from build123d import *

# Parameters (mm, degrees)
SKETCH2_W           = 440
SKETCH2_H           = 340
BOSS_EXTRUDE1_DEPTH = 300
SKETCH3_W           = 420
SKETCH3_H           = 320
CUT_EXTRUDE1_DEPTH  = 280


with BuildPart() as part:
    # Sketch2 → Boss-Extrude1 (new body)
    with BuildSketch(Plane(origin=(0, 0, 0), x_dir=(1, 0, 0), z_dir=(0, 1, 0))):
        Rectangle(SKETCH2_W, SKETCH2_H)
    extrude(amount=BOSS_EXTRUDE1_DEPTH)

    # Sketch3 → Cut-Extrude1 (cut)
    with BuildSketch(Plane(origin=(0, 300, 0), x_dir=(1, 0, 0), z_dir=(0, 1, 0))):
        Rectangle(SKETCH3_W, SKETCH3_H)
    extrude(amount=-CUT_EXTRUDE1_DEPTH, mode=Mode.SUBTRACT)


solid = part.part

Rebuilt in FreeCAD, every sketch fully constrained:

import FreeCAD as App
import Part
import Sketcher
from FreeCAD import Vector
Q = App.Units.Quantity

doc = App.newDocument("Part")
body = doc.addObject("PartDesign::Body", "Body")

# Sketch on XZ plane
sketch1 = doc.addObject("Sketcher::SketchObject", "Sketch")
body.addObject(sketch1)
sketch1.AttachmentSupport = (doc.XZ_Plane, [""])
sketch1.MapMode = "FlatFace"
sketch1.addGeometry([
    Part.LineSegment(Vector(-220, -170, 0), Vector(-220, 170, 0)),
    Part.LineSegment(Vector(-220, 170, 0), Vector(220, 170, 0)),
    Part.LineSegment(Vector(220, 170, 0), Vector(220, -170, 0)),
    Part.LineSegment(Vector(220, -170, 0), Vector(-220, -170, 0)),
], False)
sketch1.addConstraint([
    Sketcher.Constraint("Coincident", 0, 2, 1, 1),
    Sketcher.Constraint("Coincident", 1, 2, 2, 1),
    Sketcher.Constraint("Coincident", 2, 2, 3, 1),
    Sketcher.Constraint("Coincident", 3, 2, 0, 1),
    Sketcher.Constraint("Vertical", 0),
    Sketcher.Constraint("Horizontal", 1),
    Sketcher.Constraint("Vertical", 2),
    Sketcher.Constraint("Horizontal", 3),
    Sketcher.Constraint("Symmetric", 0, 2, 2, 2, -1, 1),
    Sketcher.Constraint("DistanceX", 1, 1, 1, 2, Q("440 mm")),
    Sketcher.Constraint("DistanceY", 0, 1, 0, 2, Q("340 mm")),
])
pad1 = doc.addObject("PartDesign::Pad", "Pad")
body.addObject(pad1)
pad1.Profile = sketch1
pad1.Length = 300
pad1.Reversed = True

# Sketch on XZ plane
sketch2 = doc.addObject("Sketcher::SketchObject", "Sketch001")
body.addObject(sketch2)
sketch2.AttachmentSupport = (doc.XZ_Plane, [""])
sketch2.MapMode = "FlatFace"
sketch2.AttachmentOffset = App.Placement(Vector(0, 0, -300), App.Rotation())
sketch2.addGeometry([
    Part.LineSegment(Vector(-210, -160, 0), Vector(-210, 160, 0)),
    Part.LineSegment(Vector(-210, 160, 0), Vector(210, 160, 0)),
    Part.LineSegment(Vector(210, 160, 0), Vector(210, -160, 0)),
    Part.LineSegment(Vector(210, -160, 0), Vector(-210, -160, 0)),
], False)
sketch2.addConstraint([
    Sketcher.Constraint("Coincident", 0, 2, 1, 1),
    Sketcher.Constraint("Coincident", 1, 2, 2, 1),
    Sketcher.Constraint("Coincident", 2, 2, 3, 1),
    Sketcher.Constraint("Coincident", 3, 2, 0, 1),
    Sketcher.Constraint("Vertical", 0),
    Sketcher.Constraint("Horizontal", 1),
    Sketcher.Constraint("Vertical", 2),
    Sketcher.Constraint("Horizontal", 3),
    Sketcher.Constraint("Symmetric", 0, 2, 2, 2, -1, 1),
    Sketcher.Constraint("DistanceX", 1, 1, 1, 2, Q("420 mm")),
    Sketcher.Constraint("DistanceY", 0, 1, 0, 2, Q("320 mm")),
])
pocket1 = doc.addObject("PartDesign::Pocket", "Pocket")
body.addObject(pocket1)
pocket1.Profile = sketch2
pocket1.Length = 280
pocket1.Reversed = True

doc.recompute()
